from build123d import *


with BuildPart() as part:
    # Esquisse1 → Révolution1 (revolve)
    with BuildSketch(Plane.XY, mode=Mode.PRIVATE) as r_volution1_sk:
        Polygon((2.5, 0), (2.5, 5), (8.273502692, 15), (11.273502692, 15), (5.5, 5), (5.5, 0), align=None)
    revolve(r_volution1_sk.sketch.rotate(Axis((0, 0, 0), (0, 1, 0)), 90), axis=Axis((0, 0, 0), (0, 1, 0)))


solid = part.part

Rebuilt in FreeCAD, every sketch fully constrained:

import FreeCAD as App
import Part
import Sketcher

V = App.Vector
Q = App.Units.Quantity

doc = App.newDocument("Part")
params = doc.addObject("Spreadsheet::Sheet", "Params")
for row, (alias, value) in enumerate([
    ("sketch1_width", "3 mm"),
    ("sketch1_height", "5 mm"),
    ("revolution_angle", "360 deg"),
], start=1):
    params.set(f"A{row}", alias)
    params.set(f"B{row}", "=" + value)
    params.setAlias(f"B{row}", alias)

body = doc.addObject("PartDesign::Body", "Body")

# Sketch on XY plane
sketch1 = body.newObject("Sketcher::SketchObject", "Sketch")
sketch1.AttachmentSupport = (doc.getObject("XY_Plane"), [""])
sketch1.MapMode = "FlatFace"
sketch1.addGeometry([
    Part.LineSegment(V(2.5, 5, 0), V(2.5, 0, 0)),  # 0
    Part.LineSegment(V(2.5, 0, 0), V(5.5, 0, 0)),  # 1
    Part.LineSegment(V(5.5, 0, 0), V(5.5, 5, 0)),  # 2
    Part.LineSegment(V(5.5, 5, 0), V(11.3, 15, 0)),  # 3
    Part.LineSegment(V(11.3, 15, 0), V(8.3, 15, 0)),  # 4
    Part.LineSegment(V(8.3, 15, 0), V(2.5, 5, 0)),  # 5
], False)
sketch1.addConstraint([
    Sketcher.Constraint("Coincident", 0, 2, 1, 1),
    Sketcher.Constraint("Coincident", 1, 2, 2, 1),
    Sketcher.Constraint("Coincident", 2, 2, 3, 1),
    Sketcher.Constraint("Coincident", 3, 2, 4, 1),
    Sketcher.Constraint("Coincident", 4, 2, 5, 1),
    Sketcher.Constraint("Coincident", 5, 2, 0, 1),
    Sketcher.Constraint("Vertical", 0),
    Sketcher.Constraint("Horizontal", 1),
    Sketcher.Constraint("Vertical", 2),
    Sketcher.Constraint("Horizontal", 4),
    Sketcher.Constraint("PointOnObject", 0, 2, -1),
    Sketcher.Constraint("Parallel", 3, 5),
    Sketcher.Constraint("Horizontal", 2, 2, 5, 2),
    Sketcher.Constraint("DistanceX", 1, 1, 1, 2, 3.0),
    Sketcher.Constraint("DistanceY", 0, 2, 0, 1, 5.0),
    Sketcher.Constraint("Angle", 3, Q("60 deg")),
    Sketcher.Constraint("DistanceY", -1, 1, 3, 2, 15.0),
    Sketcher.Constraint("DistanceX", -1, 1, 0, 2, 2.5),
])
sketch1.setExpression("Constraints[13]", "Params.sketch1_width")
sketch1.setExpression("Constraints[14]", "Params.sketch1_height")
revolution = body.newObject("PartDesign::Revolution", "Revolution")
revolution.Profile = sketch1
revolution.ReferenceAxis = (sketch1, ["V_Axis"])
revolution.setExpression("Angle", "Params.revolution_angle")

doc.recompute()
